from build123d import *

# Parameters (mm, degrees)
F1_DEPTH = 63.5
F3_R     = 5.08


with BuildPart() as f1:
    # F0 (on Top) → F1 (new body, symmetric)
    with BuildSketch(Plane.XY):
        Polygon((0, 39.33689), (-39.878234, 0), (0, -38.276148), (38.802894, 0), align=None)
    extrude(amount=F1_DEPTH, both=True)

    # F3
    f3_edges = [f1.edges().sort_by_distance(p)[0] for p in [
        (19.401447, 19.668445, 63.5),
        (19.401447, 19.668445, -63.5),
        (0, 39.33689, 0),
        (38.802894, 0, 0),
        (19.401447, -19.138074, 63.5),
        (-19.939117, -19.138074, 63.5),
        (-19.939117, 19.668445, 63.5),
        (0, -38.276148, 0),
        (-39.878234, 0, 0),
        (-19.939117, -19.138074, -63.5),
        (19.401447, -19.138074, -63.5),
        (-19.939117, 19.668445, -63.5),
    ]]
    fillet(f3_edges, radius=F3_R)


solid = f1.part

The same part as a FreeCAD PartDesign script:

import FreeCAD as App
import Part
import Sketcher
Q = App.Units.Quantity


def add_polygon(sketch, points):
    """Adds a closed chain of lines whose ends are joined by coincident constraints."""
    first, n = sketch.GeometryCount, len(points)
    for a, b in zip(points, points[1:] + points[:1]):
        sketch.addGeometry(Part.LineSegment(App.Vector(*a, 0), App.Vector(*b, 0)), False)
    for i in range(n):
        sketch.addConstraint(Sketcher.Constraint("Coincident", first + i, 2, first + (i + 1) % n, 1))

doc = App.newDocument("Part")
body = doc.addObject("PartDesign::Body", "Body")

# Sketch on XY plane
sketch1 = body.newObject("Sketcher::SketchObject", "Sketch")
sketch1.AttachmentSupport = (doc.getObject("XY_Plane"), [""])
sketch1.MapMode = "FlatFace"
add_polygon(sketch1, [(0, 39), (-40, 0), (0, -38), (39, 0)])  # lines 0-3
sketch1.addConstraint([
    Sketcher.Constraint("PointOnObject", 0, 2, -1),
    Sketcher.Constraint("PointOnObject", 1, 2, -2),
    Sketcher.Constraint("PointOnObject", 2, 2, -1),
    Sketcher.Constraint("PointOnObject", 3, 2, -2),
    Sketcher.Constraint("Parallel", 0, 2),
    Sketcher.Constraint("Perpendicular", 2, 3),
    Sketcher.Constraint("Distance", 0, Q("56.014859 mm")),
    Sketcher.Constraint("Distance", 3, Q("55.254461 mm")),
])
pad1 = body.newObject("PartDesign::Pad", "Pad")
pad1.Profile = sketch1
pad1.Length = Q("5 in")
pad1.Midplane = True
doc.recompute()

fillet = body.newObject("PartDesign::Fillet", "Fillet")
fillet.Base = (pad1, ["Edge1"])
fillet.UseAllEdges = True
fillet.Radius = Q("0.2 in")

doc.recompute()
